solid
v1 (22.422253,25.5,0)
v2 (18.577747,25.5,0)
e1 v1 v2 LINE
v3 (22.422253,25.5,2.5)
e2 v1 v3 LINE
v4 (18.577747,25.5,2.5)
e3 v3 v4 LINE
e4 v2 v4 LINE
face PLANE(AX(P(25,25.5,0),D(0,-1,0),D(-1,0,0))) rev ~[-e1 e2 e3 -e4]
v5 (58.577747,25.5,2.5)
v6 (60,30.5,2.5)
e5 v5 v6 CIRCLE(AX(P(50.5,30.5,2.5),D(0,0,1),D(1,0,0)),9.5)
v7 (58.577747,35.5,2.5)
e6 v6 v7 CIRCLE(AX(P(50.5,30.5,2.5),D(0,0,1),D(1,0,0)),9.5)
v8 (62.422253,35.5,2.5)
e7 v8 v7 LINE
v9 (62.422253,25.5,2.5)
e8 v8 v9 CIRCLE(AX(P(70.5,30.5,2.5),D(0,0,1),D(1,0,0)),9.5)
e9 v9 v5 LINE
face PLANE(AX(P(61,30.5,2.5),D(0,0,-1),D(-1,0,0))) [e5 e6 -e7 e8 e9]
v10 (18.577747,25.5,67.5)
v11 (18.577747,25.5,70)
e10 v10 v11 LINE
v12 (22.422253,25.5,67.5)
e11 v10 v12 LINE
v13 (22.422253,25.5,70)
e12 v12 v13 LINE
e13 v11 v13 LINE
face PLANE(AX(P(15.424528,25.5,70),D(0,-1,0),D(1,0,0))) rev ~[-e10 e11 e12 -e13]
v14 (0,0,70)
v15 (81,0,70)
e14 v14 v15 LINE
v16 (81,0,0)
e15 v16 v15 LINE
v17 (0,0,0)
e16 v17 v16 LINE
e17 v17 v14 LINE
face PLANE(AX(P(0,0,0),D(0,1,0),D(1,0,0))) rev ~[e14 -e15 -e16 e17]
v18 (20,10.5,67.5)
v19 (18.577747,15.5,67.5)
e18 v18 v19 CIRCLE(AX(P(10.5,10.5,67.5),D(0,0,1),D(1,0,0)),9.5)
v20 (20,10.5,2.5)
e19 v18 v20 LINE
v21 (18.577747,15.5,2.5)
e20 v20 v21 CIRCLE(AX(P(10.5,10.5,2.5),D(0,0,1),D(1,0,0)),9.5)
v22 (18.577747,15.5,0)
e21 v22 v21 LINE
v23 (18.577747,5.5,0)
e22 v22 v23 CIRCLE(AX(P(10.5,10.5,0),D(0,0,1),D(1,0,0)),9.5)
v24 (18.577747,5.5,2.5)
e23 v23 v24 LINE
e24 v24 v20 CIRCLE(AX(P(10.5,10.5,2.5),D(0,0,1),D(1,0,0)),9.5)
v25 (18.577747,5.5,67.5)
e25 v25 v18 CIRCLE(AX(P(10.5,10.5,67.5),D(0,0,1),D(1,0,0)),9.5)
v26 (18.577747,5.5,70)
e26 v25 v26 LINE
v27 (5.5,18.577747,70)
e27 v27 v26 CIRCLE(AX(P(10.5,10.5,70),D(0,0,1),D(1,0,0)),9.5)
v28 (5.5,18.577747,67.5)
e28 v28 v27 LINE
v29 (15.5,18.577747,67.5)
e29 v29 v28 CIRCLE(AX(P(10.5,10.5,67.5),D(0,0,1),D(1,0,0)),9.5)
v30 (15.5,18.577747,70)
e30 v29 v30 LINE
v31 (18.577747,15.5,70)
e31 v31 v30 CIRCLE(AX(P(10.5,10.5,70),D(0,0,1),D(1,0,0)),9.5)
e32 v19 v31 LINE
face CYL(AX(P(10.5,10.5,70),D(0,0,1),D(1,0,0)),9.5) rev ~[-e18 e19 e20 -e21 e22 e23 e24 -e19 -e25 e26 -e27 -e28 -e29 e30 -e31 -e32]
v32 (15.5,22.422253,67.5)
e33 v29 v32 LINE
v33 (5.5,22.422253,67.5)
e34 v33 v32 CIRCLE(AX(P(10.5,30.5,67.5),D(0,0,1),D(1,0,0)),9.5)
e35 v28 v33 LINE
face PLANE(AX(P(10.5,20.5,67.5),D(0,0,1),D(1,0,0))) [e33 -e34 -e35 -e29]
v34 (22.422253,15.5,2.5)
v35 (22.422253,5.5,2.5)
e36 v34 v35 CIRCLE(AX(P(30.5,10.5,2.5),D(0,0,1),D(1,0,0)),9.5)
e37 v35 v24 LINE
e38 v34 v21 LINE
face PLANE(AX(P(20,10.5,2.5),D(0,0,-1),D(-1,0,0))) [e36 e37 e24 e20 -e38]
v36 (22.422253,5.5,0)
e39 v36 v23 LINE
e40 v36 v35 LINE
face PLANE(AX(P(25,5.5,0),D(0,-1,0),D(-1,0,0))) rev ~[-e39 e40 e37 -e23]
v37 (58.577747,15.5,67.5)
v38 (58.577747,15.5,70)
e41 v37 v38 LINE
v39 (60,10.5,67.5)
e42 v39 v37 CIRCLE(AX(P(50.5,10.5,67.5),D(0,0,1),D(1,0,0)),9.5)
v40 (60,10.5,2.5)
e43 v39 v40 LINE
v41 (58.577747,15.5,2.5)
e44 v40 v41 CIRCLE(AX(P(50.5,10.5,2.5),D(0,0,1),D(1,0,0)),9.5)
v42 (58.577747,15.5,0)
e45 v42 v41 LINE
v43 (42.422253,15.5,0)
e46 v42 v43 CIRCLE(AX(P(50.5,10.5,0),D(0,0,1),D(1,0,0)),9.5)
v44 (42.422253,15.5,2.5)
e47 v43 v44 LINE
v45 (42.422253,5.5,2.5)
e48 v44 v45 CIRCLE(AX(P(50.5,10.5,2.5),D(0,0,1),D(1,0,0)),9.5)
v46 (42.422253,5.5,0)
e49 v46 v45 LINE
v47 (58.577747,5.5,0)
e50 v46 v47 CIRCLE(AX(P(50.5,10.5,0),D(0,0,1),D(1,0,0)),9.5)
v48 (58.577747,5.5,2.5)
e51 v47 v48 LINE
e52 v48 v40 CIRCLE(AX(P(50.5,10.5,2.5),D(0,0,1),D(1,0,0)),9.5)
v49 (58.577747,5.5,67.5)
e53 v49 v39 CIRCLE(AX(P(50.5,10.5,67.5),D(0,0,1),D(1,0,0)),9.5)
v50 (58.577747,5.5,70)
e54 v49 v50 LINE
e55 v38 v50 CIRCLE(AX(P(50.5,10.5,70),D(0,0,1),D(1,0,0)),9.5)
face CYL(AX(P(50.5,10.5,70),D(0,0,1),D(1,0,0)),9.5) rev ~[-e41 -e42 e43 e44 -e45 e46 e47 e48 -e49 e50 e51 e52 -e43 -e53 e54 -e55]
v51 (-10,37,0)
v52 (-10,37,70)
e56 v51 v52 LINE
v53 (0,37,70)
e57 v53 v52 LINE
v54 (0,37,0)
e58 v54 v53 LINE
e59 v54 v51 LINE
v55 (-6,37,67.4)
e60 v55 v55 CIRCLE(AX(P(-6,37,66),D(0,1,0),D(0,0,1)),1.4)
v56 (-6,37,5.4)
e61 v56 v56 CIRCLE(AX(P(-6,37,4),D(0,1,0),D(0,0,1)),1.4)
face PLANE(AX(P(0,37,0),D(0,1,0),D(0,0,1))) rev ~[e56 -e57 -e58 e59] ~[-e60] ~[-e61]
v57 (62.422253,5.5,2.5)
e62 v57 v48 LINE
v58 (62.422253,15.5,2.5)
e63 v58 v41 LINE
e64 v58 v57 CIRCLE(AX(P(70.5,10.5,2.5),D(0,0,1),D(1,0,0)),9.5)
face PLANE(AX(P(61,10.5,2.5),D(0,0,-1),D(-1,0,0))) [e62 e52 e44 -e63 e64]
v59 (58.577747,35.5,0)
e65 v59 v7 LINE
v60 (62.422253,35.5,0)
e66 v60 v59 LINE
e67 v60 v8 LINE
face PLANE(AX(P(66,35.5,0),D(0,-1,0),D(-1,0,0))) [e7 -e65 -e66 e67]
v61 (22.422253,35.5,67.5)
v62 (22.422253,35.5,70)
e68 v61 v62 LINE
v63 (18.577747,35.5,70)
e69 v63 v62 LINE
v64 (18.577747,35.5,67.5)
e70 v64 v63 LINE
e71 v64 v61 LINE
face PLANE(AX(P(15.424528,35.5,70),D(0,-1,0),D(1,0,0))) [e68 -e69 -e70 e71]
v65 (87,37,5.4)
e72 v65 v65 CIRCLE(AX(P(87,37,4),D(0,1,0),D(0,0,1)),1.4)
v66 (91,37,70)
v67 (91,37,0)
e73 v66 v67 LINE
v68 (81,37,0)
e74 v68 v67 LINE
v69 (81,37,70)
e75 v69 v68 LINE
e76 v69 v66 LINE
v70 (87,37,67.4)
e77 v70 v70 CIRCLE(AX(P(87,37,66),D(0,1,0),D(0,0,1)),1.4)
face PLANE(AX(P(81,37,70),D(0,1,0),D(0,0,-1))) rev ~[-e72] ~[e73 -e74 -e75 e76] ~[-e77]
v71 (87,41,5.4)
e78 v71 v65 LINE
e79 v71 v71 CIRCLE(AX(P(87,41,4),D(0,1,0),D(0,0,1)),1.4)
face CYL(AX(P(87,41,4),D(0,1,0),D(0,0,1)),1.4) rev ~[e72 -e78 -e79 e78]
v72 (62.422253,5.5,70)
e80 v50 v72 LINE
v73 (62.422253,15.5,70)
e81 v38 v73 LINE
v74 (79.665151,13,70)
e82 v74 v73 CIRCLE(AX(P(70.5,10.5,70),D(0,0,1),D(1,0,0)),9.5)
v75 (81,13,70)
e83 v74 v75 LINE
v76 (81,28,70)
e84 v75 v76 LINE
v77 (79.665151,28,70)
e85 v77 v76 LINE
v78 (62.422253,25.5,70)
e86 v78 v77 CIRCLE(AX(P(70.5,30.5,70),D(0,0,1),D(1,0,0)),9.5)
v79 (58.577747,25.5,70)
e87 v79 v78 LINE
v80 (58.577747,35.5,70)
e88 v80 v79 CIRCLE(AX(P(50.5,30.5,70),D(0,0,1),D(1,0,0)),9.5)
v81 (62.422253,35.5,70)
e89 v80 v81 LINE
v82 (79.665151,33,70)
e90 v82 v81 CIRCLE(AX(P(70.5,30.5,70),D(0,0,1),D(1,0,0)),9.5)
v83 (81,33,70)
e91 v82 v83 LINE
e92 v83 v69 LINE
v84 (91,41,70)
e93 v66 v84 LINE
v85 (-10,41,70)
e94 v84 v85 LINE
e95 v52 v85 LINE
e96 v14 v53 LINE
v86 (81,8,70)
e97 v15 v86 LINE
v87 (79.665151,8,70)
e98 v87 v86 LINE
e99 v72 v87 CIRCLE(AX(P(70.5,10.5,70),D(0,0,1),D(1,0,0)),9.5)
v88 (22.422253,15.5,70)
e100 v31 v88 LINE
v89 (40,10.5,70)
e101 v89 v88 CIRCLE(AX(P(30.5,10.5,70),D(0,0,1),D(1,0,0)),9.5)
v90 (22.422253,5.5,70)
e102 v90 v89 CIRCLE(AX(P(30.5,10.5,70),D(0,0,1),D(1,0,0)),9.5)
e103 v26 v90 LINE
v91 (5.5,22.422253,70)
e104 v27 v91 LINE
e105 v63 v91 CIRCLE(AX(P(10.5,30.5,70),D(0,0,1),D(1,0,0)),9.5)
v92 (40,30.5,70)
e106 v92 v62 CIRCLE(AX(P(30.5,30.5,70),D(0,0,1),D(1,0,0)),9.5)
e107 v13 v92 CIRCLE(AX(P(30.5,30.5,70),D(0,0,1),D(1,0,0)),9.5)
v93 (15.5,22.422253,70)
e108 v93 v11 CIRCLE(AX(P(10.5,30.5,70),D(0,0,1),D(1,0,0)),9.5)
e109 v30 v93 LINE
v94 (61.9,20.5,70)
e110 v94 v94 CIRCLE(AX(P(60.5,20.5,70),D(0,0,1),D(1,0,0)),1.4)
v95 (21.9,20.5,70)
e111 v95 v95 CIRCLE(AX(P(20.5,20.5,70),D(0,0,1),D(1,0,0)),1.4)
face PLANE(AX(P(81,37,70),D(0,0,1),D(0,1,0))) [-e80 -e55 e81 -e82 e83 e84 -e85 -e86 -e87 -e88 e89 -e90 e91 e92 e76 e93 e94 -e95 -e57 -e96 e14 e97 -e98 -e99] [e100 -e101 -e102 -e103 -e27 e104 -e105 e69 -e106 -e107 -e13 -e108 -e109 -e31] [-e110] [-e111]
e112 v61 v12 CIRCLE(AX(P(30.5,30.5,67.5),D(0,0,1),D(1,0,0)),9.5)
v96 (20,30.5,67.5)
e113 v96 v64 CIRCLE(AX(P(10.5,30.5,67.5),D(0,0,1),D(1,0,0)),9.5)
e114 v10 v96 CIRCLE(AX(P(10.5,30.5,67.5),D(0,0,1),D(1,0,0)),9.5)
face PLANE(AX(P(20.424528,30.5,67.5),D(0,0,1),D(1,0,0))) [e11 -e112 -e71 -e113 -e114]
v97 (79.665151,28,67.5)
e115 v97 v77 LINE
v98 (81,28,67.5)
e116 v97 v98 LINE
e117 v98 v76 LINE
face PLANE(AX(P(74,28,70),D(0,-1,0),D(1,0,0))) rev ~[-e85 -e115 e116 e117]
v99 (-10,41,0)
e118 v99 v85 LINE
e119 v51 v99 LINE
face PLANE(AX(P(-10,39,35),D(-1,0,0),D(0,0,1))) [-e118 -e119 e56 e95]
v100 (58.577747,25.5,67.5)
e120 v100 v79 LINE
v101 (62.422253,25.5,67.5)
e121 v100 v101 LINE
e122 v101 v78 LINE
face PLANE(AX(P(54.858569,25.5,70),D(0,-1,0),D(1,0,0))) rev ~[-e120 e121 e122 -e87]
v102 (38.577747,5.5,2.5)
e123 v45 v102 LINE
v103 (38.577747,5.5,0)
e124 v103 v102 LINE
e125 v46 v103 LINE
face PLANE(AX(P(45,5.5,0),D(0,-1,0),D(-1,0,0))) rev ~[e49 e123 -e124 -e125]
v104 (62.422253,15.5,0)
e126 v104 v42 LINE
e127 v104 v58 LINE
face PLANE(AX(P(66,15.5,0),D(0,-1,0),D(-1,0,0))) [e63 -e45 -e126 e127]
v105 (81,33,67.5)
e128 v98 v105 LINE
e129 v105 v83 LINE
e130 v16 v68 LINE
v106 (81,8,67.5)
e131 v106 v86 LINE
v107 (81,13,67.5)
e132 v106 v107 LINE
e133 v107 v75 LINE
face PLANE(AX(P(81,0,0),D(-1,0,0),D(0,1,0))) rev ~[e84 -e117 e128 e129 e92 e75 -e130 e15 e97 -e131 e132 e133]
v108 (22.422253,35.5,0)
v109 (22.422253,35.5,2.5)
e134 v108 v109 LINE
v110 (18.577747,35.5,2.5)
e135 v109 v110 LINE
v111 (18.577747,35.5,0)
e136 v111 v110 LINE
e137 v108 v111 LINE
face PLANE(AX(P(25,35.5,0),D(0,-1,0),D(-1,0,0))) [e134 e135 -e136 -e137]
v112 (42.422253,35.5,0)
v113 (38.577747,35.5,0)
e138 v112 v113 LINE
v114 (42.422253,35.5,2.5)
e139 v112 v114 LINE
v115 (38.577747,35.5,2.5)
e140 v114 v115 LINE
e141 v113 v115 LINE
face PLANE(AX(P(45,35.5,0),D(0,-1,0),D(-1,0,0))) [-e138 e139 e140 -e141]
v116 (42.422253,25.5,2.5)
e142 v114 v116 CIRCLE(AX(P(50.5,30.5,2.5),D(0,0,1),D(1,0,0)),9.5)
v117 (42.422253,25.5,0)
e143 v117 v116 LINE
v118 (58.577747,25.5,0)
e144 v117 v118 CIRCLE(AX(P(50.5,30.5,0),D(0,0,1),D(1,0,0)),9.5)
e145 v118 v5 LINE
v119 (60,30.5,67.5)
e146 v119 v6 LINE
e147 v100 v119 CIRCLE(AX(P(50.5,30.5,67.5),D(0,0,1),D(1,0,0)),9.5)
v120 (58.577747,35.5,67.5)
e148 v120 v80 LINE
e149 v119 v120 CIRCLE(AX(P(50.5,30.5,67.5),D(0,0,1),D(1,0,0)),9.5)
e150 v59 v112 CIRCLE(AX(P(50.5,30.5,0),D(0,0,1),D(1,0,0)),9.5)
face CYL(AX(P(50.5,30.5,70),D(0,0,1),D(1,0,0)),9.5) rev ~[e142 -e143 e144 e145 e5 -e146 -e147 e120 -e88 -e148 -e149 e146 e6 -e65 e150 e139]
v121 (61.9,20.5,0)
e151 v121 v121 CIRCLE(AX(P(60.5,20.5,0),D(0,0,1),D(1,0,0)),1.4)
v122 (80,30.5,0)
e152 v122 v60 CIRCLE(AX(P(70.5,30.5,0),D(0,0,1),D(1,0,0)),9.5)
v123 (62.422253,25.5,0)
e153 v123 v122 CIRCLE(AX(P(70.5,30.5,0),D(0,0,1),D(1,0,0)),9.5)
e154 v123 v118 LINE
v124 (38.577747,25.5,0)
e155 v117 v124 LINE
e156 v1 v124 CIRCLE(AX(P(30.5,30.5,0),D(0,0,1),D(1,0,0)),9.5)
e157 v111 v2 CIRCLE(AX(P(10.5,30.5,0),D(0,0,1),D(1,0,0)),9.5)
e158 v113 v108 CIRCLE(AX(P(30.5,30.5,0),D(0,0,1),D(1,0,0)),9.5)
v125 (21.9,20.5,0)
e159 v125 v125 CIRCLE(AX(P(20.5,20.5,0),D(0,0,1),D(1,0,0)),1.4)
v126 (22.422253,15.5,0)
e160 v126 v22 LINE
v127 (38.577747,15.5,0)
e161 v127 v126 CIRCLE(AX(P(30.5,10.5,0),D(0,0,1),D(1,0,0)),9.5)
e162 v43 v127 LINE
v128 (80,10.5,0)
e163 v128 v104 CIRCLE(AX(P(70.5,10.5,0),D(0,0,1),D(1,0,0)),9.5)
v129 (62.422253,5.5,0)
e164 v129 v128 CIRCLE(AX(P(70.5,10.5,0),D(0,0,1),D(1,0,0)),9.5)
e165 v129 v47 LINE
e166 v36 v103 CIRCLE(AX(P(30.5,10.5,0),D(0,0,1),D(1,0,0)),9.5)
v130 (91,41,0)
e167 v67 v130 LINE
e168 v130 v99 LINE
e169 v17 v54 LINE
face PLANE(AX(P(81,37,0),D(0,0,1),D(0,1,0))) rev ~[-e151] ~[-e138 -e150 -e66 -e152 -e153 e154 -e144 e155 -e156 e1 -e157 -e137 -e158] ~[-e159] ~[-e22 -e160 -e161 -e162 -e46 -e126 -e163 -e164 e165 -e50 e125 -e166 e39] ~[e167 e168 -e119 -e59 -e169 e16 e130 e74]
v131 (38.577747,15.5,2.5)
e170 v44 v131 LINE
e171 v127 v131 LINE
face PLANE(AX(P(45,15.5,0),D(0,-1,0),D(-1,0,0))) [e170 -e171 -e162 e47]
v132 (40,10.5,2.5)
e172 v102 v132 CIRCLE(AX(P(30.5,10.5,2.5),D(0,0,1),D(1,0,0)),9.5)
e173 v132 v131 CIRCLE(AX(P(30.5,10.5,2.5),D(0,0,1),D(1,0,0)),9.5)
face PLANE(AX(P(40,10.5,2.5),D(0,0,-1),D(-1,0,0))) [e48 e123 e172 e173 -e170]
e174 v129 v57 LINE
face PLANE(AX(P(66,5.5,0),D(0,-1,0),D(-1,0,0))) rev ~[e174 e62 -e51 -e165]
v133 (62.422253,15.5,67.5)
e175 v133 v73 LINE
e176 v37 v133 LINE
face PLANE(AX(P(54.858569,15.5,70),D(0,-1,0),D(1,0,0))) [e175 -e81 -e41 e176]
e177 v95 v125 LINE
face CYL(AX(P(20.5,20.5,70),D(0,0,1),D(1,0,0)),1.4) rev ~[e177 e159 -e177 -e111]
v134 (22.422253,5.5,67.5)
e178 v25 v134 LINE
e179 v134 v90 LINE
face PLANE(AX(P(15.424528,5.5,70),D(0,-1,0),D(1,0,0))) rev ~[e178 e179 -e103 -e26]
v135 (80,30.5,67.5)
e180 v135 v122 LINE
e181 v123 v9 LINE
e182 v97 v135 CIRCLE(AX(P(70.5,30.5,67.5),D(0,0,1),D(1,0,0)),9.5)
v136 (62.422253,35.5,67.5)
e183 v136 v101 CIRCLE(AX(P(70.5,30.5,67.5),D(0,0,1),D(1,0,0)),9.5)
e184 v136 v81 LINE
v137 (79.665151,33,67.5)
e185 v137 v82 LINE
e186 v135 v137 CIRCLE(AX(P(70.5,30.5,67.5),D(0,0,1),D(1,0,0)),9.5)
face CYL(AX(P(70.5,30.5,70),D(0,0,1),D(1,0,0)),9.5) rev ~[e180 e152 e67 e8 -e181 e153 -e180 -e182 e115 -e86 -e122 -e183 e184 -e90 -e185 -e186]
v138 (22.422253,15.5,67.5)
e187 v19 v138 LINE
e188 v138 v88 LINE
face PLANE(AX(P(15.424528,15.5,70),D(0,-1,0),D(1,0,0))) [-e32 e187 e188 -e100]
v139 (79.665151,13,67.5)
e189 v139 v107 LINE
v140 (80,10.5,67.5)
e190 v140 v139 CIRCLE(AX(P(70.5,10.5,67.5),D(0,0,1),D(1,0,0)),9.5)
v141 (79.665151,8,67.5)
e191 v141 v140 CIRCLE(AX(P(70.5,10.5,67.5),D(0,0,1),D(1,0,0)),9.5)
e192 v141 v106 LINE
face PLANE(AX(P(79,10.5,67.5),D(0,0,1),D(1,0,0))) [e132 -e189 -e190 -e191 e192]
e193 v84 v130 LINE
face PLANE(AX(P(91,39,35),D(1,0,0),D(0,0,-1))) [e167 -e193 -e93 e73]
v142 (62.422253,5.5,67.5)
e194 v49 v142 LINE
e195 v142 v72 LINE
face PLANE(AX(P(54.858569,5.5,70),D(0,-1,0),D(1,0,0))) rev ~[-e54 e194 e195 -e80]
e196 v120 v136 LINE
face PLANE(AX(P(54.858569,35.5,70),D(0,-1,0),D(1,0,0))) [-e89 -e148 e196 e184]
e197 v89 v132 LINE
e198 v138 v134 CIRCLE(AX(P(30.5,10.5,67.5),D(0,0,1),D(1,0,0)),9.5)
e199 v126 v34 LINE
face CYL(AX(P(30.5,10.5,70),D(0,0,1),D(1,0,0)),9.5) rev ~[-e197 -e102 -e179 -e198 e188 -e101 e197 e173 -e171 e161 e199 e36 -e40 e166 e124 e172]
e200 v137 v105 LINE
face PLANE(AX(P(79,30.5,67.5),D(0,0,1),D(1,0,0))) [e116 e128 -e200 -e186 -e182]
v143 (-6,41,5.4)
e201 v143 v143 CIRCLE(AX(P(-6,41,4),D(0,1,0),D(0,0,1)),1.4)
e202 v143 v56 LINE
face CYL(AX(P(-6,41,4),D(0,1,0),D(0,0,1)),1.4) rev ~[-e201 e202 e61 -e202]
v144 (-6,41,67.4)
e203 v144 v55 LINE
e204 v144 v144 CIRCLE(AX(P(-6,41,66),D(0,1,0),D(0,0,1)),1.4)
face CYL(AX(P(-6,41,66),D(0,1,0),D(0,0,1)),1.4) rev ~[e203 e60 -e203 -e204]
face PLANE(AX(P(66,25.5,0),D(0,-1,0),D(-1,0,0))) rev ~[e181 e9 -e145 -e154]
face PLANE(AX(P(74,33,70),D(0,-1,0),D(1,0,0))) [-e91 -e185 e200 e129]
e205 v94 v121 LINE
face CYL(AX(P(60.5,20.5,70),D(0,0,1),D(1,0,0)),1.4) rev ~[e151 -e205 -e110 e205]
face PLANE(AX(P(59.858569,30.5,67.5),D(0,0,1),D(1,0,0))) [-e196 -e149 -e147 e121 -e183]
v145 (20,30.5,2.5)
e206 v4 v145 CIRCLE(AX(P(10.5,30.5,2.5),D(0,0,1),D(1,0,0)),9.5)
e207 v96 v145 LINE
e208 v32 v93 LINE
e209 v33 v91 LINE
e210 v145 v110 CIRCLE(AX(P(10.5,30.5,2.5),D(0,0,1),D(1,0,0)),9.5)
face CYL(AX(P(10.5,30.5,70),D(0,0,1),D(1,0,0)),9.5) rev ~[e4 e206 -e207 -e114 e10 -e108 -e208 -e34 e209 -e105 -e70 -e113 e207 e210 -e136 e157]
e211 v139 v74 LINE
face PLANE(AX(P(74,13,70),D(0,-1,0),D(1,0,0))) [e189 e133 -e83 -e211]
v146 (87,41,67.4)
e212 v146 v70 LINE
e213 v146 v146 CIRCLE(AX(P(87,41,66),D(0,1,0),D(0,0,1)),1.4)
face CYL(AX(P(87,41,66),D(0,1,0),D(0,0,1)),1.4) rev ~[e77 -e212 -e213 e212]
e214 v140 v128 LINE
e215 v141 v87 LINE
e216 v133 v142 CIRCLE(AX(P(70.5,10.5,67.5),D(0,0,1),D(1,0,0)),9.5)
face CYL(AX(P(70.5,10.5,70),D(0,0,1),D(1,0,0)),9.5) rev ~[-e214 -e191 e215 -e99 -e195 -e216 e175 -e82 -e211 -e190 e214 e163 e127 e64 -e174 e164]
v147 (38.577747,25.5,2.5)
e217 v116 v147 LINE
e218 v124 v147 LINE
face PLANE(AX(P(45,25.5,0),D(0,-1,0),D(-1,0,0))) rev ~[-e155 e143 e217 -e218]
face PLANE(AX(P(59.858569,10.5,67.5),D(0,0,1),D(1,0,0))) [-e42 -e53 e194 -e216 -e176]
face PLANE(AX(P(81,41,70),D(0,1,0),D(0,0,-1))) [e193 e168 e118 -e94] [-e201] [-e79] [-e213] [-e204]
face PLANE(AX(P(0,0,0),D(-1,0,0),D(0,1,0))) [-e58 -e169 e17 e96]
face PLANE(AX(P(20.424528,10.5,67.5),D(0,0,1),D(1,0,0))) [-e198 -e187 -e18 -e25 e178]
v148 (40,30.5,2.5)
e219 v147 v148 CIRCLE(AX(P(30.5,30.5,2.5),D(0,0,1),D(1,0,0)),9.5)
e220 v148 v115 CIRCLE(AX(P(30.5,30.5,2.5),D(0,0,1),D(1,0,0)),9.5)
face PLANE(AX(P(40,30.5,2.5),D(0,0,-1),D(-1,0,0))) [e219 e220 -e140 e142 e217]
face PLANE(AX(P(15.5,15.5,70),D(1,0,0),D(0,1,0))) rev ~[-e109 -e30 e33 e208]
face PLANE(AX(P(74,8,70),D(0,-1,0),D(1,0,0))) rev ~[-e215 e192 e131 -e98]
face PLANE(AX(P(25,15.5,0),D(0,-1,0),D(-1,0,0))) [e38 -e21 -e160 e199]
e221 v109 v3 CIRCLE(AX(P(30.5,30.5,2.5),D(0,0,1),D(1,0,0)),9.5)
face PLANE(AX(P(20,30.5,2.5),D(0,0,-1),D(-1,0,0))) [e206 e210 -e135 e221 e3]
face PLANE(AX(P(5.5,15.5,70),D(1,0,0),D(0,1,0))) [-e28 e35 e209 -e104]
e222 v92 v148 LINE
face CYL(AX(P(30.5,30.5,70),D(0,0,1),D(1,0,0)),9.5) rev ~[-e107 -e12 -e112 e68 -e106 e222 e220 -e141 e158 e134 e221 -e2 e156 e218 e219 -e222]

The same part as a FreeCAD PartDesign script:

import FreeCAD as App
import Part
import Sketcher
Q = App.Units.Quantity

doc = App.newDocument("Part")
body = doc.addObject("PartDesign::Body", "Body")

# Sketch on XY plane
sketch1 = doc.addObject("Sketcher::SketchObject", "Sketch")
body.addObject(sketch1)
sketch1.AttachmentSupport = (doc.XY_Plane, [""])
sketch1.MapMode = "FlatFace"
sketch1.addGeometry([
    Part.LineSegment(App.Vector(0, 41, 0), App.Vector(0, 0, 0)),
    Part.LineSegment(App.Vector(0, 0, 0), App.Vector(81, 0, 0)),
    Part.LineSegment(App.Vector(81, 0, 0), App.Vector(81, 41, 0)),
    Part.LineSegment(App.Vector(81, 41, 0), App.Vector(0, 41, 0)),
], False)
sketch1.addConstraint([
    Sketcher.Constraint("Coincident", 0, 2, 1, 1),
    Sketcher.Constraint("Coincident", 1, 2, 2, 1),
    Sketcher.Constraint("Coincident", 2, 2, 3, 1),
    Sketcher.Constraint("Coincident", 3, 2, 0, 1),
    Sketcher.Constraint("Vertical", 0),
    Sketcher.Constraint("Horizontal", 1),
    Sketcher.Constraint("Vertical", 2),
    Sketcher.Constraint("Horizontal", 3),
    Sketcher.Constraint("Coincident", 0, 2, -1, 1),
    Sketcher.Constraint("DistanceX", 1, 1, 1, 2, Q("81 mm")),
    Sketcher.Constraint("DistanceY", 0, 2, 0, 1, Q("41 mm")),
])
pad1 = doc.addObject("PartDesign::Pad", "Pad")
body.addObject(pad1)
pad1.Profile = sketch1
pad1.Length = 70

# Sketch on XY plane
sketch2 = doc.addObject("Sketcher::SketchObject", "Sketch001")
body.addObject(sketch2)
sketch2.AttachmentSupport = (doc.XY_Plane, [""])
sketch2.MapMode = "FlatFace"
sketch2.AttachmentOffset = App.Placement(App.Vector(0, 0, 70), App.Rotation())
sketch2.addGeometry([
    Part.Circle(App.Vector(10, 30, 0), App.Vector(0, 0, 1), 10),  # 0
    Part.Circle(App.Vector(30, 30, 0), App.Vector(0, 0, 1), 10),  # 1
    Part.Circle(App.Vector(50, 30, 0), App.Vector(0, 0, 1), 10),  # 2
    Part.Circle(App.Vector(70, 30, 0), App.Vector(0, 0, 1), 10),  # 3
    Part.Circle(App.Vector(30, 10, 0), App.Vector(0, 0, 1), 10),  # 4
    Part.Circle(App.Vector(50, 10, 0), App.Vector(0, 0, 1), 10),  # 5
    Part.Circle(App.Vector(70, 10, 0), App.Vector(0, 0, 1), 10),  # 6
    Part.Circle(App.Vector(10, 10, 0), App.Vector(0, 0, 1), 10),  # 7
], False)
sketch2.addConstraint([
    Sketcher.Constraint("Equal", 0, 1),
    Sketcher.Constraint("Equal", 1, 2),
    Sketcher.Constraint("Equal", 2, 3),
    Sketcher.Constraint("Equal", 3, 4),
    Sketcher.Constraint("Equal", 4, 5),
    Sketcher.Constraint("Equal", 5, 6),
    Sketcher.Constraint("Equal", 6, 7),
    Sketcher.Constraint("Horizontal", 0, 3, 1, 3),
    Sketcher.Constraint("Horizontal", 1, 3, 2, 3),
    Sketcher.Constraint("Horizontal", 2, 3, 3, 3),
    Sketcher.Constraint("Horizontal", 4, 3, 5, 3),
    Sketcher.Constraint("Horizontal", 5, 3, 6, 3),
    Sketcher.Constraint("Horizontal", 6, 3, 7, 3),
    Sketcher.Constraint("Vertical", 1, 3, 4, 3),
    Sketcher.Constraint("Vertical", 2, 3, 5, 3),
    Sketcher.Constraint("Vertical", 3, 3, 6, 3),
    Sketcher.Constraint("Vertical", 0, 3, 7, 3),
    Sketcher.Constraint("Diameter", 0, Q("19 mm")),
    Sketcher.Constraint("DistanceX", 0, 3, 1, 3, Q("20 mm")),
    Sketcher.Constraint("DistanceX", 1, 3, 2, 3, Q("20 mm")),
    Sketcher.Constraint("DistanceX", 2, 3, 3, 3, Q("20 mm")),
    Sketcher.Constraint("DistanceY", 4, 3, 1, 3, Q("20 mm")),
    Sketcher.Constraint("DistanceX", -1, 1, 0, 3, Q("10.5 mm")),
    Sketcher.Constraint("DistanceY", -1, 1, 0, 3, Q("30.5 mm")),
])
pocket1 = doc.addObject("PartDesign::Pocket", "Pocket")
body.addObject(pocket1)
pocket1.Profile = sketch2
pocket1.Type = "ThroughAll"

# Sketch on YZ plane
sketch3 = doc.addObject("Sketcher::SketchObject", "Sketch002")
body.addObject(sketch3)
sketch3.AttachmentSupport = (doc.YZ_Plane, [""])
sketch3.MapMode = "FlatFace"
sketch3.addGeometry([
    Part.LineSegment(App.Vector(41, 0, 0), App.Vector(37, 0, 0)),
    Part.LineSegment(App.Vector(37, 0, 0), App.Vector(37, 70, 0)),
    Part.LineSegment(App.Vector(37, 70, 0), App.Vector(41, 70, 0)),
    Part.LineSegment(App.Vector(41, 70, 0), App.Vector(41, 0, 0)),
], False)
sketch3.addConstraint([
    Sketcher.Constraint("Coincident", 0, 2, 1, 1),
    Sketcher.Constraint("Coincident", 1, 2, 2, 1),
    Sketcher.Constraint("Coincident", 2, 2, 3, 1),
    Sketcher.Constraint("Coincident", 3, 2, 0, 1),
    Sketcher.Constraint("Horizontal", 0),
    Sketcher.Constraint("Vertical", 1),
    Sketcher.Constraint("Horizontal", 2),
    Sketcher.Constraint("Vertical", 3),
    Sketcher.Constraint("PointOnObject", 0, 2, -1),
    Sketcher.Constraint("DistanceX", 0, 2, 0, 1, Q("4 mm")),
    Sketcher.Constraint("DistanceY", 1, 1, 1, 2, Q("70 mm")),
    Sketcher.Constraint("DistanceX", -1, 1, 0, 2, Q("37 mm")),
])
pad2 = doc.addObject("PartDesign::Pad", "Pad001")
body.addObject(pad2)
pad2.Profile = sketch3
pad2.Length = 10
pad2.Reversed = True

# Sketch on YZ plane
sketch4 = doc.addObject("Sketcher::SketchObject", "Sketch003")
body.addObject(sketch4)
sketch4.AttachmentSupport = (doc.YZ_Plane, [""])
sketch4.MapMode = "FlatFace"
sketch4.AttachmentOffset = App.Placement(App.Vector(0, 0, 81), App.Rotation())
sketch4.addGeometry([
    Part.LineSegment(App.Vector(41, 70, 0), App.Vector(37, 70, 0)),
    Part.LineSegment(App.Vector(37, 70, 0), App.Vector(37, 0, 0)),
    Part.LineSegment(App.Vector(37, 0, 0), App.Vector(41, 0, 0)),
    Part.LineSegment(App.Vector(41, 0, 0), App.Vector(41, 70, 0)),
], False)
sketch4.addConstraint([
    Sketcher.Constraint("Coincident", 0, 2, 1, 1),
    Sketcher.Constraint("Coincident", 1, 2, 2, 1),
    Sketcher.Constraint("Coincident", 2, 2, 3, 1),
    Sketcher.Constraint("Coincident", 3, 2, 0, 1),
    Sketcher.Constraint("Horizontal", 0),
    Sketcher.Constraint("Vertical", 1),
    Sketcher.Constraint("Horizontal", 2),
    Sketcher.Constraint("Vertical", 3),
    Sketcher.Constraint("PointOnObject", 1, 2, -1),
    Sketcher.Constraint("DistanceX", 0, 2, 0, 1, Q("4 mm")),
    Sketcher.Constraint("DistanceY", 1, 2, 1, 1, Q("70 mm")),
    Sketcher.Constraint("DistanceX", -1, 1, 0, 2, Q("37 mm")),
])
pad3 = doc.addObject("PartDesign::Pad", "Pad002")
body.addObject(pad3)
pad3.Profile = sketch4
pad3.Length = 10

# Sketch on XZ plane
sketch5 = doc.addObject("Sketcher::SketchObject", "Sketch004")
body.addObject(sketch5)
sketch5.AttachmentSupport = (doc.XZ_Plane, [""])
sketch5.MapMode = "FlatFace"
sketch5.AttachmentOffset = App.Placement(App.Vector(0, 0, -41), App.Rotation())
sketch5.addGeometry([
    Part.Circle(App.Vector(-6, 4, 0), App.Vector(0, 0, 1), 1.4),
    Part.Circle(App.Vector(-6, 66, 0), App.Vector(0, 0, 1), 1.4),
    Part.Circle(App.Vector(87, 66, 0), App.Vector(0, 0, 1), 1.4),
    Part.Circle(App.Vector(87, 4, 0), App.Vector(0, 0, 1), 1.4),
], False)
sketch5.addConstraint([
    Sketcher.Constraint("Equal", 0, 1),
    Sketcher.Constraint("Equal", 1, 2),
    Sketcher.Constraint("Equal", 2, 3),
    Sketcher.Constraint("Horizontal", 1, 3, 2, 3),
    Sketcher.Constraint("Horizontal", 0, 3, 3, 3),
    Sketcher.Constraint("Vertical", 0, 3, 1, 3),
    Sketcher.Constraint("Vertical", 2, 3, 3, 3),
    Sketcher.Constraint("Diameter", 0, Q("2.8 mm")),
    Sketcher.Constraint("DistanceX", 0, 3, -1, 1, Q("6 mm")),
    Sketcher.Constraint("DistanceY", -1, 1, 0, 3, Q("4 mm")),
    Sketcher.Constraint("DistanceY", -1, 1, 1, 3, Q("66 mm")),
    Sketcher.Constraint("DistanceX", -1, 1, 2, 3, Q("87 mm")),
])
pocket2 = doc.addObject("PartDesign::Pocket", "Pocket001")
body.addObject(pocket2)
pocket2.Profile = sketch5
pocket2.Type = "ThroughAll"
pocket2.Reversed = True

# Sketch on XY plane
sketch6 = doc.addObject("Sketcher::SketchObject", "Sketch005")
body.addObject(sketch6)
sketch6.AttachmentSupport = (doc.XY_Plane, [""])
sketch6.MapMode = "FlatFace"
sketch6.AttachmentOffset = App.Placement(App.Vector(0, 0, 70), App.Rotation())
sketch6.addGeometry([
    Part.LineSegment(App.Vector(15, 36, 0), App.Vector(15, 26, 0)),  # 0
    Part.LineSegment(App.Vector(15, 26, 0), App.Vector(25, 26, 0)),  # 1
    Part.LineSegment(App.Vector(25, 26, 0), App.Vector(25, 36, 0)),  # 2
    Part.LineSegment(App.Vector(25, 36, 0), App.Vector(15, 36, 0)),  # 3
    Part.LineSegment(App.Vector(55, 36, 0), App.Vector(55, 26, 0)),  # 4
    Part.LineSegment(App.Vector(55, 26, 0), App.Vector(65, 26, 0)),  # 5
    Part.LineSegment(App.Vector(65, 26, 0), App.Vector(65, 36, 0)),  # 6
    Part.LineSegment(App.Vector(65, 36, 0), App.Vector(55, 36, 0)),  # 7
    Part.LineSegment(App.Vector(15, 16, 0), App.Vector(15, 6, 0)),  # 8
    Part.LineSegment(App.Vector(15, 6, 0), App.Vector(25, 6, 0)),  # 9
    Part.LineSegment(App.Vector(25, 6, 0), App.Vector(25, 16, 0)),  # 10
    Part.LineSegment(App.Vector(25, 16, 0), App.Vector(15, 16, 0)),  # 11
    Part.LineSegment(App.Vector(55, 16, 0), App.Vector(55, 6, 0)),  # 12
    Part.LineSegment(App.Vector(55, 6, 0), App.Vector(65, 6, 0)),  # 13
    Part.LineSegment(App.Vector(65, 6, 0), App.Vector(65, 16, 0)),  # 14
    Part.LineSegment(App.Vector(65, 16, 0), App.Vector(55, 16, 0)),  # 15
], False)
sketch6.addConstraint([
    Sketcher.Constraint("Coincident", 0, 2, 1, 1),
    Sketcher.Constraint("Coincident", 1, 2, 2, 1),
    Sketcher.Constraint("Coincident", 2, 2, 3, 1),
    Sketcher.Constraint("Coincident", 3, 2, 0, 1),
    Sketcher.Constraint("Coincident", 4, 2, 5, 1),
    Sketcher.Constraint("Coincident", 5, 2, 6, 1),
    Sketcher.Constraint("Coincident", 6, 2, 7, 1),
    Sketcher.Constraint("Coincident", 7, 2, 4, 1),
    Sketcher.Constraint("Coincident", 8, 2, 9, 1),
    Sketcher.Constraint("Coincident", 9, 2, 10, 1),
    Sketcher.Constraint("Coincident", 10, 2, 11, 1),
    Sketcher.Constraint("Coincident", 11, 2, 8, 1),
    Sketcher.Constraint("Coincident", 12, 2, 13, 1),
    Sketcher.Constraint("Coincident", 13, 2, 14, 1),
    Sketcher.Constraint("Coincident", 14, 2, 15, 1),
    Sketcher.Constraint("Coincident", 15, 2, 12, 1),
    Sketcher.Constraint("Vertical", 0),
    Sketcher.Constraint("Horizontal", 1),
    Sketcher.Constraint("Vertical", 2),
    Sketcher.Constraint("Horizontal", 3),
    Sketcher.Constraint("Vertical", 4),
    Sketcher.Constraint("Horizontal", 5),
    Sketcher.Constraint("Vertical", 6),
    Sketcher.Constraint("Horizontal", 7),
    Sketcher.Constraint("Vertical", 8),
    Sketcher.Constraint("Horizontal", 9),
    Sketcher.Constraint("Vertical", 10),
    Sketcher.Constraint("Horizontal", 11),
    Sketcher.Constraint("Vertical", 12),
    Sketcher.Constraint("Horizontal", 13),
    Sketcher.Constraint("Vertical", 14),
    Sketcher.Constraint("Horizontal", 15),
    Sketcher.Constraint("Horizontal", 1, 2, 4, 2),
    Sketcher.Constraint("Horizontal", 3, 2, 6, 2),
    Sketcher.Constraint("Horizontal", 9, 2, 12, 2),
    Sketcher.Constraint("Horizontal", 11, 2, 14, 2),
    Sketcher.Constraint("Vertical", 3, 2, 8, 2),
    Sketcher.Constraint("Vertical", 2, 2, 9, 2),
    Sketcher.Constraint("Vertical", 7, 2, 12, 2),
    Sketcher.Constraint("Vertical", 6, 2, 13, 2),
    Sketcher.Constraint("Equal", 3, 5),
    Sketcher.Constraint("Equal", 15, 0),
    Sketcher.Constraint("Equal", 6, 8),
    Sketcher.Constraint("DistanceX", 1, 1, 1, 2, Q("10 mm")),
    Sketcher.Constraint("DistanceY", 8, 2, 0, 2, Q("20 mm")),
    Sketcher.Constraint("DistanceY", -1, 1, 0, 2, Q("25.5 mm")),
    Sketcher.Constraint("DistanceX", -1, 1, 0, 2, Q("15.424528 mm")),
    Sketcher.Constraint("DistanceX", -1, 1, 4, 2, Q("54.858569 mm")),
])
pocket3 = doc.addObject("PartDesign::Pocket", "Pocket002")
body.addObject(pocket3)
pocket3.Profile = sketch6
pocket3.Length = 2.5

# Sketch on XY plane
sketch7 = doc.addObject("Sketcher::SketchObject", "Sketch006")
body.addObject(sketch7)
sketch7.AttachmentSupport = (doc.XY_Plane, [""])
sketch7.MapMode = "FlatFace"
sketch7.addGeometry([
    Part.LineSegment(App.Vector(66, 36, 0), App.Vector(66, 26, 0)),  # 0
    Part.LineSegment(App.Vector(66, 26, 0), App.Vector(56, 26, 0)),  # 1
    Part.LineSegment(App.Vector(56, 26, 0), App.Vector(56, 36, 0)),  # 2
    Part.LineSegment(App.Vector(56, 36, 0), App.Vector(66, 36, 0)),  # 3
    Part.LineSegment(App.Vector(25, 36, 0), App.Vector(25, 26, 0)),  # 4
    Part.LineSegment(App.Vector(25, 26, 0), App.Vector(15, 26, 0)),  # 5
    Part.LineSegment(App.Vector(15, 26, 0), App.Vector(15, 36, 0)),  # 6
    Part.LineSegment(App.Vector(15, 36, 0), App.Vector(25, 36, 0)),  # 7
    Part.LineSegment(App.Vector(25, 16, 0), App.Vector(25, 6, 0)),  # 8
    Part.LineSegment(App.Vector(25, 6, 0), App.Vector(15, 6, 0)),  # 9
    Part.LineSegment(App.Vector(15, 6, 0), App.Vector(15, 16, 0)),  # 10
    Part.LineSegment(App.Vector(15, 16, 0), App.Vector(25, 16, 0)),  # 11
    Part.LineSegment(App.Vector(66, 16, 0), App.Vector(66, 6, 0)),  # 12
    Part.LineSegment(App.Vector(66, 6, 0), App.Vector(56, 6, 0)),  # 13
    Part.LineSegment(App.Vector(56, 6, 0), App.Vector(56, 16, 0)),  # 14
    Part.LineSegment(App.Vector(56, 16, 0), App.Vector(66, 16, 0)),  # 15
], False)
sketch7.addConstraint([
    Sketcher.Constraint("Coincident", 0, 2, 1, 1),
    Sketcher.Constraint("Coincident", 1, 2, 2, 1),
    Sketcher.Constraint("Coincident", 2, 2, 3, 1),
    Sketcher.Constraint("Coincident", 3, 2, 0, 1),
    Sketcher.Constraint("Coincident", 4, 2, 5, 1),
    Sketcher.Constraint("Coincident", 5, 2, 6, 1),
    Sketcher.Constraint("Coincident", 6, 2, 7, 1),
    Sketcher.Constraint("Coincident", 7, 2, 4, 1),
    Sketcher.Constraint("Coincident", 8, 2, 9, 1),
    Sketcher.Constraint("Coincident", 9, 2, 10, 1),
    Sketcher.Constraint("Coincident", 10, 2, 11, 1),
    Sketcher.Constraint("Coincident", 11, 2, 8, 1),
    Sketcher.Constraint("Coincident", 12, 2, 13, 1),
    Sketcher.Constraint("Coincident", 13, 2, 14, 1),
    Sketcher.Constraint("Coincident", 14, 2, 15, 1),
    Sketcher.Constraint("Coincident", 15, 2, 12, 1),
    Sketcher.Constraint("Vertical", 0),
    Sketcher.Constraint("Horizontal", 1),
    Sketcher.Constraint("Vertical", 2),
    Sketcher.Constraint("Horizontal", 3),
    Sketcher.Constraint("Vertical", 4),
    Sketcher.Constraint("Horizontal", 5),
    Sketcher.Constraint("Vertical", 6),
    Sketcher.Constraint("Horizontal", 7),
    Sketcher.Constraint("Vertical", 8),
    Sketcher.Constraint("Horizontal", 9),
    Sketcher.Constraint("Vertical", 10),
    Sketcher.Constraint("Horizontal", 11),
    Sketcher.Constraint("Vertical", 12),
    Sketcher.Constraint("Horizontal", 13),
    Sketcher.Constraint("Vertical", 14),
    Sketcher.Constraint("Horizontal", 15),
    Sketcher.Constraint("Horizontal", 1, 2, 4, 2),
    Sketcher.Constraint("Horizontal", 3, 2, 6, 2),
    Sketcher.Constraint("Horizontal", 9, 2, 12, 2),
    Sketcher.Constraint("Horizontal", 11, 2, 14, 2),
    Sketcher.Constraint("Vertical", 7, 2, 8, 2),
    Sketcher.Constraint("Vertical", 6, 2, 9, 2),
    Sketcher.Constraint("Vertical", 3, 2, 12, 2),
    Sketcher.Constraint("Vertical", 2, 2, 13, 2),
    Sketcher.Constraint("Equal", 3, 5),
    Sketcher.Constraint("Equal", 15, 0),
    Sketcher.Constraint("Equal", 6, 8),
    Sketcher.Constraint("DistanceX", 1, 2, 1, 1, Q("10 mm")),
    Sketcher.Constraint("DistanceX", -1, 1, 0, 2, Q("66 mm")),
    Sketcher.Constraint("DistanceX", -1, 1, 4, 2, Q("25 mm")),
    Sketcher.Constraint("DistanceY", 8, 2, 4, 2, Q("20 mm")),
    Sketcher.Constraint("DistanceY", -1, 1, 0, 2, Q("25.5 mm")),
])
pocket4 = doc.addObject("PartDesign::Pocket", "Pocket003")
body.addObject(pocket4)
pocket4.Profile = sketch7
pocket4.Length = 2.5
pocket4.Reversed = True

# Sketch on XY plane
sketch8 = doc.addObject("Sketcher::SketchObject", "Sketch007")
body.addObject(sketch8)
sketch8.AttachmentSupport = (doc.XY_Plane, [""])
sketch8.MapMode = "FlatFace"
sketch8.addGeometry([
    Part.LineSegment(App.Vector(45, 36, 0), App.Vector(45, 26, 0)),  # 0
    Part.LineSegment(App.Vector(45, 26, 0), App.Vector(35, 26, 0)),  # 1
    Part.LineSegment(App.Vector(35, 26, 0), App.Vector(35, 36, 0)),  # 2
    Part.LineSegment(App.Vector(35, 36, 0), App.Vector(45, 36, 0)),  # 3
    Part.LineSegment(App.Vector(45, 16, 0), App.Vector(45, 6, 0)),  # 4
    Part.LineSegment(App.Vector(45, 6, 0), App.Vector(35, 6, 0)),  # 5
    Part.LineSegment(App.Vector(35, 6, 0), App.Vector(35, 16, 0)),  # 6
    Part.LineSegment(App.Vector(35, 16, 0), App.Vector(45, 16, 0)),  # 7
], False)
sketch8.addConstraint([
    Sketcher.Constraint("Coincident", 0, 2, 1, 1),
    Sketcher.Constraint("Coincident", 1, 2, 2, 1),
    Sketcher.Constraint("Coincident", 2, 2, 3, 1),
    Sketcher.Constraint("Coincident", 3, 2, 0, 1),
    Sketcher.Constraint("Coincident", 4, 2, 5, 1),
    Sketcher.Constraint("Coincident", 5, 2, 6, 1),
    Sketcher.Constraint("Coincident", 6, 2, 7, 1),
    Sketcher.Constraint("Coincident", 7, 2, 4, 1),
    Sketcher.Constraint("Vertical", 0),
    Sketcher.Constraint("Horizontal", 1),
    Sketcher.Constraint("Vertical", 2),
    Sketcher.Constraint("Horizontal", 3),
    Sketcher.Constraint("Vertical", 4),
    Sketcher.Constraint("Horizontal", 5),
    Sketcher.Constraint("Vertical", 6),
    Sketcher.Constraint("Horizontal", 7),
    Sketcher.Constraint("Vertical", 3, 2, 4, 2),
    Sketcher.Constraint("Vertical", 2, 2, 5, 2),
    Sketcher.Constraint("Equal", 7, 0),
    Sketcher.Constraint("Equal", 2, 4),
    Sketcher.Constraint("DistanceX", 1, 2, 1, 1, Q("10 mm")),
    Sketcher.Constraint("DistanceX", -1, 1, 0, 2, Q("45 mm")),
    Sketcher.Constraint("DistanceY", 4, 2, 0, 2, Q("20 mm")),
    Sketcher.Constraint("DistanceY", -1, 1, 0, 2, Q("25.5 mm")),
])
pocket5 = doc.addObject("PartDesign::Pocket", "Pocket004")
body.addObject(pocket5)
pocket5.Profile = sketch8
pocket5.Length = 2.5
pocket5.Reversed = True

# Sketch on XY plane
sketch9 = doc.addObject("Sketcher::SketchObject", "Sketch008")
body.addObject(sketch9)
sketch9.AttachmentSupport = (doc.XY_Plane, [""])
sketch9.MapMode = "FlatFace"
sketch9.AttachmentOffset = App.Placement(App.Vector(0, 0, 70), App.Rotation())
sketch9.addGeometry([
    Part.LineSegment(App.Vector(6, 26, 0), App.Vector(6, 16, 0)),  # 0
    Part.LineSegment(App.Vector(6, 16, 0), App.Vector(16, 16, 0)),  # 1
    Part.LineSegment(App.Vector(16, 16, 0), App.Vector(16, 26, 0)),  # 2
    Part.LineSegment(App.Vector(16, 26, 0), App.Vector(6, 26, 0)),  # 3
    Part.LineSegment(App.Vector(74, 33, 0), App.Vector(74, 28, 0)),  # 4
    Part.LineSegment(App.Vector(74, 28, 0), App.Vector(84, 28, 0)),  # 5
    Part.LineSegment(App.Vector(84, 28, 0), App.Vector(84, 33, 0)),  # 6
    Part.LineSegment(App.Vector(84, 33, 0), App.Vector(74, 33, 0)),  # 7
    Part.LineSegment(App.Vector(74, 13, 0), App.Vector(74, 8, 0)),  # 8
    Part.LineSegment(App.Vector(74, 8, 0), App.Vector(84, 8, 0)),  # 9
    Part.LineSegment(App.Vector(84, 8, 0), App.Vector(84, 13, 0)),  # 10
    Part.LineSegment(App.Vector(84, 13, 0), App.Vector(74, 13, 0)),  # 11
], False)
sketch9.addConstraint([
    Sketcher.Constraint("Coincident", 0, 2, 1, 1),
    Sketcher.Constraint("Coincident", 1, 2, 2, 1),
    Sketcher.Constraint("Coincident", 2, 2, 3, 1),
    Sketcher.Constraint("Coincident", 3, 2, 0, 1),
    Sketcher.Constraint("Coincident", 4, 2, 5, 1),
    Sketcher.Constraint("Coincident", 5, 2, 6, 1),
    Sketcher.Constraint("Coincident", 6, 2, 7, 1),
    Sketcher.Constraint("Coincident", 7, 2, 4, 1),
    Sketcher.Constraint("Coincident", 8, 2, 9, 1),
    Sketcher.Constraint("Coincident", 9, 2, 10, 1),
    Sketcher.Constraint("Coincident", 10, 2, 11, 1),
    Sketcher.Constraint("Coincident", 11, 2, 8, 1),
    Sketcher.Constraint("Vertical", 0),
    Sketcher.Constraint("Horizontal", 1),
    Sketcher.Constraint("Vertical", 2),
    Sketcher.Constraint("Horizontal", 3),
    Sketcher.Constraint("Vertical", 4),
    Sketcher.Constraint("Horizontal", 5),
    Sketcher.Constraint("Vertical", 6),
    Sketcher.Constraint("Horizontal", 7),
    Sketcher.Constraint("Vertical", 8),
    Sketcher.Constraint("Horizontal", 9),
    Sketcher.Constraint("Vertical", 10),
    Sketcher.Constraint("Horizontal", 11),
    Sketcher.Constraint("Vertical", 7, 2, 8, 2),
    Sketcher.Constraint("Vertical", 6, 2, 9, 2),
    Sketcher.Constraint("Equal", 3, 5),
    Sketcher.Constraint("Equal", 11, 0),
    Sketcher.Constraint("Equal", 6, 8),
    Sketcher.Constraint("DistanceX", 1, 1, 1, 2, Q("10 mm")),
    Sketcher.Constraint("DistanceY", 4, 2, 4, 1, Q("5 mm")),
    Sketcher.Constraint("DistanceX", -1, 1, 4, 2, Q("74 mm")),
    Sketcher.Constraint("DistanceY", -1, 1, 4, 2, Q("28 mm")),
    Sketcher.Constraint("DistanceY", -1, 1, 8, 2, Q("8 mm")),
    Sketcher.Constraint("DistanceX", -1, 1, 0, 2, Q("5.5 mm")),
    Sketcher.Constraint("DistanceY", -1, 1, 0, 2, Q("15.5 mm")),
])
pocket6 = doc.addObject("PartDesign::Pocket", "Pocket005")
body.addObject(pocket6)
pocket6.Profile = sketch9
pocket6.Length = 2.5

# Sketch on XY plane
sketch10 = doc.addObject("Sketcher::SketchObject", "Sketch009")
body.addObject(sketch10)
sketch10.AttachmentSupport = (doc.XY_Plane, [""])
sketch10.MapMode = "FlatFace"
sketch10.AttachmentOffset = App.Placement(App.Vector(0, 0, 70), App.Rotation())
sketch10.addGeometry([
    Part.Circle(App.Vector(20.5, 20.5, 0), App.Vector(0, 0, 1), 1.4),
    Part.Circle(App.Vector(60.5, 20.5, 0), App.Vector(0, 0, 1), 1.4),
], False)
sketch10.addConstraint([
    Sketcher.Constraint("Equal", 0, 1),
    Sketcher.Constraint("Horizontal", 0, 3, 1, 3),
    Sketcher.Constraint("Diameter", 0, Q("2.8 mm")),
    Sketcher.Constraint("DistanceX", 0, 3, 1, 3, Q("40 mm")),
    Sketcher.Constraint("DistanceX", -1, 1, 0, 3, Q("20.5 mm")),
    Sketcher.Constraint("DistanceY", -1, 1, 0, 3, Q("20.5 mm")),
])
pocket7 = doc.addObject("PartDesign::Pocket", "Pocket006")
body.addObject(pocket7)
pocket7.Profile = sketch10
pocket7.Type = "ThroughAll"

doc.recompute()
